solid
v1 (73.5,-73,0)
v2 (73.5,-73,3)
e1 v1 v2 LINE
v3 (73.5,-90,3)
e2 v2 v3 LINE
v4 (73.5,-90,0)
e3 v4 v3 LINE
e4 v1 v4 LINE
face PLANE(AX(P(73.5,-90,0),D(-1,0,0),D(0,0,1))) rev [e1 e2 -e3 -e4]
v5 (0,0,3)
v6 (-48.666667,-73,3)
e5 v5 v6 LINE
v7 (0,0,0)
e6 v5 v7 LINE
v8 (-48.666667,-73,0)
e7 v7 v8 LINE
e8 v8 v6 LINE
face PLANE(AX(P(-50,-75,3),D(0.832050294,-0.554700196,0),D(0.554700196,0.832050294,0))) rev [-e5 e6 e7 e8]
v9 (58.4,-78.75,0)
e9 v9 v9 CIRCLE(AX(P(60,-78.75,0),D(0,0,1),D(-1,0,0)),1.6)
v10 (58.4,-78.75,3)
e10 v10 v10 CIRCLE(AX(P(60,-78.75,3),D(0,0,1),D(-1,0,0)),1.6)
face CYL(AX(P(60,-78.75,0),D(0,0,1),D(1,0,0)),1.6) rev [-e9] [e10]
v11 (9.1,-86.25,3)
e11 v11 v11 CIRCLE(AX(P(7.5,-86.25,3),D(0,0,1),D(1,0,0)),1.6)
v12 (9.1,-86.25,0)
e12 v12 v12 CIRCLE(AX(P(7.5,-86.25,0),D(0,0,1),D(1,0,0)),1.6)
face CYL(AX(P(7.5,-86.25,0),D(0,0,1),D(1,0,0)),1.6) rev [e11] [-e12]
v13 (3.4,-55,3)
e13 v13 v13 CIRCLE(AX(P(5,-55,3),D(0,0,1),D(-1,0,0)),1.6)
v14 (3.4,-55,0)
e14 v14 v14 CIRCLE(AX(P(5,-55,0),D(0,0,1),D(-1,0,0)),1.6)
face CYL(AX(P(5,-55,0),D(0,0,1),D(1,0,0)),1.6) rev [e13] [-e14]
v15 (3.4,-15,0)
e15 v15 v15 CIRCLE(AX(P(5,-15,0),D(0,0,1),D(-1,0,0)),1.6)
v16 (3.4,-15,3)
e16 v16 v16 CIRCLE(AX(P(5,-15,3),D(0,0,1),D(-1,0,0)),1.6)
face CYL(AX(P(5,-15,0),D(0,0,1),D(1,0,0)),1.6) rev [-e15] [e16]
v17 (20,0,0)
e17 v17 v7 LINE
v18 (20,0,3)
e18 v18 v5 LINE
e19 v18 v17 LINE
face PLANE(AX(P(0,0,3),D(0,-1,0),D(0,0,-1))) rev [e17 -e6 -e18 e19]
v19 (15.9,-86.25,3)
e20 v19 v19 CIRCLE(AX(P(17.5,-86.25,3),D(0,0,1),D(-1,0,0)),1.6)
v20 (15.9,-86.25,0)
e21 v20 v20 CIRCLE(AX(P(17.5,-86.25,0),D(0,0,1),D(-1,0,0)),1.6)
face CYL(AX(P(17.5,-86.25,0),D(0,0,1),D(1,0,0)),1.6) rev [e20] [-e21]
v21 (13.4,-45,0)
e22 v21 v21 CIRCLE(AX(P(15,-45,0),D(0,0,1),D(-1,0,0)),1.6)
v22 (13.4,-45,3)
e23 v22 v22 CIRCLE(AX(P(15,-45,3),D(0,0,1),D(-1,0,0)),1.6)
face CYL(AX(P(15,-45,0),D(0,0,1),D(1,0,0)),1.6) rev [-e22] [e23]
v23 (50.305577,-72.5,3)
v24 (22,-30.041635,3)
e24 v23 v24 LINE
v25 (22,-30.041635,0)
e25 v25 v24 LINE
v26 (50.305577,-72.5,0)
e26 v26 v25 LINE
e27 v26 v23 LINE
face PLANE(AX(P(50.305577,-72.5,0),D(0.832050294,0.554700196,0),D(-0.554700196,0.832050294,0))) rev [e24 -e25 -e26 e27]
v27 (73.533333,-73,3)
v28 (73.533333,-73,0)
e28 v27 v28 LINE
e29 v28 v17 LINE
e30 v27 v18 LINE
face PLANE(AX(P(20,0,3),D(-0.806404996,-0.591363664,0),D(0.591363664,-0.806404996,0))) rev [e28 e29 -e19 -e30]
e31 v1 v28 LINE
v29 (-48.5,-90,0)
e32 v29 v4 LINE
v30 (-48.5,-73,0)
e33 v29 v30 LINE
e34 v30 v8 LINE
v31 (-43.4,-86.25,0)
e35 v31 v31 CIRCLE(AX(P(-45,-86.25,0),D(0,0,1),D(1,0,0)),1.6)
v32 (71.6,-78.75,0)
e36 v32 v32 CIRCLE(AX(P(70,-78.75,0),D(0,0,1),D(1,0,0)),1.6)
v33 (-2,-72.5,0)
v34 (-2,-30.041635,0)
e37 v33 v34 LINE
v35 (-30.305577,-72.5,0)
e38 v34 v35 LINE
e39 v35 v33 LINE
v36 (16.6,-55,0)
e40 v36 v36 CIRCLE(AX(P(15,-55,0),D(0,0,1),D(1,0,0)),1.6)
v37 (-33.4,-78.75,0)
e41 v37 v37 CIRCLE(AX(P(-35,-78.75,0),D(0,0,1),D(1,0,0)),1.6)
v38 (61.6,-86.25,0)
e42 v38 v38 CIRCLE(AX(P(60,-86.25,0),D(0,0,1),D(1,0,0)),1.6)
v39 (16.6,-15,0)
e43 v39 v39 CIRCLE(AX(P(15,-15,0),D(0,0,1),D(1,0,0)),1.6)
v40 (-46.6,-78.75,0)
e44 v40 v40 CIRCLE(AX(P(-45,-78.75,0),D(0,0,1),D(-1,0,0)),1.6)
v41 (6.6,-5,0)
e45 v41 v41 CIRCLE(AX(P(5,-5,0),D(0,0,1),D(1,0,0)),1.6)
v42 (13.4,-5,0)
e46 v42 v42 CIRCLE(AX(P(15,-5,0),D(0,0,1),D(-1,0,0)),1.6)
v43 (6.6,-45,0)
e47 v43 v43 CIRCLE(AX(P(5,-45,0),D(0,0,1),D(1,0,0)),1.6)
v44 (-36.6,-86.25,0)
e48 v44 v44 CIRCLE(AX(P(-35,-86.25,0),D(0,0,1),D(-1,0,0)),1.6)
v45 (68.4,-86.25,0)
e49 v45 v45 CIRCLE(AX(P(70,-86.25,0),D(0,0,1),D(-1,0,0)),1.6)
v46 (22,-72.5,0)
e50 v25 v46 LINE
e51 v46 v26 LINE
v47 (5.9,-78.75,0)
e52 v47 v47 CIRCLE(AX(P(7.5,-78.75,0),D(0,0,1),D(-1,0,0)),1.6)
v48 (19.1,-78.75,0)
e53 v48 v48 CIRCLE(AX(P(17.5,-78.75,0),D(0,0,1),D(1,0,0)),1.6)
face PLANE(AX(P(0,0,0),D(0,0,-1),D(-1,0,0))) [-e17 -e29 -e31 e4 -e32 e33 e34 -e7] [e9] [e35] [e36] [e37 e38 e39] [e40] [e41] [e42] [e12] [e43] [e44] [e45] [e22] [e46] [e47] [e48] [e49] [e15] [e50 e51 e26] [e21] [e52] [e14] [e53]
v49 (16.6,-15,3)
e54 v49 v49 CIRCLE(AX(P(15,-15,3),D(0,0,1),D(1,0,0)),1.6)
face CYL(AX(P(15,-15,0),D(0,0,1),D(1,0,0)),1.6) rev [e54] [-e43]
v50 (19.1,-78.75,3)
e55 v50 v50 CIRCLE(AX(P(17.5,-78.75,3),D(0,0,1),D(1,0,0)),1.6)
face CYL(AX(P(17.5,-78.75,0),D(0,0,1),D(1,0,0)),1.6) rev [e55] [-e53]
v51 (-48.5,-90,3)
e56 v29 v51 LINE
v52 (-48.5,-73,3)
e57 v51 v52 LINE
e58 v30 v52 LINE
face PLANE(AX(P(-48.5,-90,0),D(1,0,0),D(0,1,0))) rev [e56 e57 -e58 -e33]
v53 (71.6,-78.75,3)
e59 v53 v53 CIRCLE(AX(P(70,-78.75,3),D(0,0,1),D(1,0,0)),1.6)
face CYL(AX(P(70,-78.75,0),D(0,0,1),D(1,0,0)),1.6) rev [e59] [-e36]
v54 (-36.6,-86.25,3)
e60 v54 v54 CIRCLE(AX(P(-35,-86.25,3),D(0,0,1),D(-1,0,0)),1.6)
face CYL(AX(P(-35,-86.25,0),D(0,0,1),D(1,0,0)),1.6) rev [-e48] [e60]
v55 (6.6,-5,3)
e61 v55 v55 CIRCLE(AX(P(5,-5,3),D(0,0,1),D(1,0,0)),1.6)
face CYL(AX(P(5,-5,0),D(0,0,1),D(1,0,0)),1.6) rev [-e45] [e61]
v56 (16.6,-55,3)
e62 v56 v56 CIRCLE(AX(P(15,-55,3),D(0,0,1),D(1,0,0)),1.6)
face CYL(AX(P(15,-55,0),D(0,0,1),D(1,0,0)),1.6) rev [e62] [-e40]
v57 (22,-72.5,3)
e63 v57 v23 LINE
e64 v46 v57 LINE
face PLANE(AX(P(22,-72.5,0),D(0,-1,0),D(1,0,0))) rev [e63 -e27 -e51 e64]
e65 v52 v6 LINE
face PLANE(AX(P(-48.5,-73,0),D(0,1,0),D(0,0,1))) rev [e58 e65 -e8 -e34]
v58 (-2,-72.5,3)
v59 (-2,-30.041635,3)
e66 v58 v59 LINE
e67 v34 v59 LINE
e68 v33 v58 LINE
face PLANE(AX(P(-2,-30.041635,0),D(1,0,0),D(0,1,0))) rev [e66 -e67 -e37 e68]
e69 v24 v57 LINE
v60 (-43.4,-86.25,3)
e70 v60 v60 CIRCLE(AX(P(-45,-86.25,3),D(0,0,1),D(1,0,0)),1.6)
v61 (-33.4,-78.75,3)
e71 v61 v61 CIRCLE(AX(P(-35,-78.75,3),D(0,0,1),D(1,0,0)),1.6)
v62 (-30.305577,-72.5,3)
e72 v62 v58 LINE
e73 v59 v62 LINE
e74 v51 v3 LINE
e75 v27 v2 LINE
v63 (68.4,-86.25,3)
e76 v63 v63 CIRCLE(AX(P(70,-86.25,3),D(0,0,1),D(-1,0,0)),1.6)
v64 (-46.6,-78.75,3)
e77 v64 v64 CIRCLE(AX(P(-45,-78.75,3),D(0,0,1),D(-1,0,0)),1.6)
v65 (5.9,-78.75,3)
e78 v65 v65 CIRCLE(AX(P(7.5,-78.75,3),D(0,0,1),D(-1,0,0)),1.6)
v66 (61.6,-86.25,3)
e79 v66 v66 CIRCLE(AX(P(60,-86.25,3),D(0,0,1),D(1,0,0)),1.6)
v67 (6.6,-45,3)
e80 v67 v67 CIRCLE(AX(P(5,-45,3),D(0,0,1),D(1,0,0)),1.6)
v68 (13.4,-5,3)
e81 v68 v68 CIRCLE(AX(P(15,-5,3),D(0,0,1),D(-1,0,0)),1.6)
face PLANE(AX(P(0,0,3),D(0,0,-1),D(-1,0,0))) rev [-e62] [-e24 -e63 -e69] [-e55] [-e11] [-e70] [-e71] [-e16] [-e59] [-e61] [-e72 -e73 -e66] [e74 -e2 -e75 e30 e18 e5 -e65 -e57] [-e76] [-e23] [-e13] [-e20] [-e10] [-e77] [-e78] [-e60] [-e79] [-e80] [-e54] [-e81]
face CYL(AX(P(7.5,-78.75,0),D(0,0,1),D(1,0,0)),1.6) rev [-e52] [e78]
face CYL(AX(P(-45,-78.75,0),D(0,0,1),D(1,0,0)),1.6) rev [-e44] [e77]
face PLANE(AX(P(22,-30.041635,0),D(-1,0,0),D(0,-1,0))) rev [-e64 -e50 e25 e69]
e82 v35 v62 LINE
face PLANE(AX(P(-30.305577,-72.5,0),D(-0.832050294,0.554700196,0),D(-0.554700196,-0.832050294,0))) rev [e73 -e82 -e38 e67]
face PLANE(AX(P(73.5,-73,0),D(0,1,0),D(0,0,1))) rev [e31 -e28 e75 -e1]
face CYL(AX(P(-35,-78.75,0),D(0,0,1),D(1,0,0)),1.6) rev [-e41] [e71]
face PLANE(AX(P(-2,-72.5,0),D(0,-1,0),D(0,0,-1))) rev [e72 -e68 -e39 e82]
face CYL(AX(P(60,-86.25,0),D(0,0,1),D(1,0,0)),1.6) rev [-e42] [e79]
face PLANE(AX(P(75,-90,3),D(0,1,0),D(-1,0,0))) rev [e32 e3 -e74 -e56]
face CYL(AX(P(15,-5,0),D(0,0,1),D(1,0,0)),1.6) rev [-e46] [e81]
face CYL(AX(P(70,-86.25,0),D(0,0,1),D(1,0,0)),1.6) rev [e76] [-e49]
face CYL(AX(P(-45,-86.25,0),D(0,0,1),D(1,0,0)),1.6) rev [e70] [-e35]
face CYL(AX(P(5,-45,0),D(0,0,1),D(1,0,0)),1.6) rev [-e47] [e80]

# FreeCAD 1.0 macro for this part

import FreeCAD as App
import Part
import Sketcher
Q = App.Units.Quantity

doc = App.newDocument("Part")
body = doc.addObject("PartDesign::Body", "Body")

# Sketch on XY plane
sketch1 = doc.addObject("Sketcher::SketchObject", "Sketch")
body.addObject(sketch1)
sketch1.AttachmentSupport = (doc.XY_Plane, [""])
sketch1.MapMode = "FlatFace"
sketch1.addGeometry([
    Part.LineSegment(App.Vector(20, 0, 0), App.Vector(0, 0, 0)),  # 0
    Part.LineSegment(App.Vector(0, 0, 0), App.Vector(-50, -75, 0)),  # 1
    Part.LineSegment(App.Vector(-50, -75, 0), App.Vector(-50, -90, 0)),  # 2
    Part.LineSegment(App.Vector(-50, -90, 0), App.Vector(75, -90, 0)),  # 3
    Part.LineSegment(App.Vector(75, -90, 0), App.Vector(75, -75, 0)),  # 4
    Part.LineSegment(App.Vector(75, -75, 0), App.Vector(20, 0, 0)),  # 5
], False)
sketch1.addConstraint([
    Sketcher.Constraint("Coincident", 0, 2, 1, 1),
    Sketcher.Constraint("Coincident", 1, 2, 2, 1),
    Sketcher.Constraint("Coincident", 2, 2, 3, 1),
    Sketcher.Constraint("Coincident", 3, 2, 4, 1),
    Sketcher.Constraint("Coincident", 4, 2, 5, 1),
    Sketcher.Constraint("Coincident", 5, 2, 0, 1),
    Sketcher.Constraint("Horizontal", 0),
    Sketcher.Constraint("Vertical", 2),
    Sketcher.Constraint("Horizontal", 3),
    Sketcher.Constraint("Vertical", 4),
    Sketcher.Constraint("Coincident", 0, 2, -1, 1),
    Sketcher.Constraint("Horizontal", 1, 2, 4, 2),
    Sketcher.Constraint("DistanceX", 0, 2, 0, 1, Q("20 mm")),
    Sketcher.Constraint("DistanceX", 3, 1, 3, 2, Q("125 mm")),
    Sketcher.Constraint("DistanceY", 2, 2, 2, 1, Q("15 mm")),
    Sketcher.Constraint("DistanceX", 1, 2, -1, 1, Q("50 mm")),
    Sketcher.Constraint("DistanceY", 1, 2, -1, 1, Q("75 mm")),
])
pad1 = doc.addObject("PartDesign::Pad", "Pad")
body.addObject(pad1)
pad1.Profile = sketch1
pad1.Length = 3

# Sketch on XY plane
sketch2 = doc.addObject("Sketcher::SketchObject", "Sketch001")
body.addObject(sketch2)
sketch2.AttachmentSupport = (doc.XY_Plane, [""])
sketch2.MapMode = "FlatFace"
sketch2.AttachmentOffset = App.Placement(App.Vector(0, 0, 3), App.Rotation())
sketch2.addGeometry([
    Part.Circle(App.Vector(5, -5, 0), App.Vector(0, 0, 1), 1.6),  # 0
    Part.Circle(App.Vector(15, -5, 0), App.Vector(0, 0, 1), 1.6),  # 1
    Part.Circle(App.Vector(15, -15, 0), App.Vector(0, 0, 1), 1.6),  # 2
    Part.Circle(App.Vector(5, -15, 0), App.Vector(0, 0, 1), 1.6),  # 3
    Part.Circle(App.Vector(-45, -86.2, 0), App.Vector(0, 0, 1), 1.6),  # 4
    Part.Circle(App.Vector(-45, -78.8, 0), App.Vector(0, 0, 1), 1.6),  # 5
    Part.Circle(App.Vector(-35, -86.2, 0), App.Vector(0, 0, 1), 1.6),  # 6
    Part.Circle(App.Vector(-35, -78.8, 0), App.Vector(0, 0, 1), 1.6),  # 7
    Part.Circle(App.Vector(60, -78.8, 0), App.Vector(0, 0, 1), 1.6),  # 8
    Part.Circle(App.Vector(60, -86.2, 0), App.Vector(0, 0, 1), 1.6),  # 9
    Part.Circle(App.Vector(70, -78.8, 0), App.Vector(0, 0, 1), 1.6),  # 10
    Part.Circle(App.Vector(70, -86.2, 0), App.Vector(0, 0, 1), 1.6),  # 11
    Part.Circle(App.Vector(7.5, -86.2, 0), App.Vector(0, 0, 1), 1.6),  # 12
    Part.Circle(App.Vector(17.5, -86.2, 0), App.Vector(0, 0, 1), 1.6),  # 13
    Part.Circle(App.Vector(17.5, -78.8, 0), App.Vector(0, 0, 1), 1.6),  # 14
    Part.Circle(App.Vector(7.5, -78.8, 0), App.Vector(0, 0, 1), 1.6),  # 15
    Part.Circle(App.Vector(5, -45, 0), App.Vector(0, 0, 1), 1.6),  # 16
    Part.Circle(App.Vector(15, -45, 0), App.Vector(0, 0, 1), 1.6),  # 17
    Part.Circle(App.Vector(15, -55, 0), App.Vector(0, 0, 1), 1.6),  # 18
    Part.Circle(App.Vector(5, -55, 0), App.Vector(0, 0, 1), 1.6),  # 19
    Part.LineSegment(App.Vector(-2, -72.5, 0), App.Vector(-2, -30, 0)),  # 20
    Part.LineSegment(App.Vector(-2, -30, 0), App.Vector(-30.3, -72.5, 0)),  # 21
    Part.LineSegment(App.Vector(-30.3, -72.5, 0), App.Vector(-2, -72.5, 0)),  # 22
    Part.LineSegment(App.Vector(22, -72.5, 0), App.Vector(50.3, -72.5, 0)),  # 23
    Part.LineSegment(App.Vector(50.3, -72.5, 0), App.Vector(22, -30, 0)),  # 24
    Part.LineSegment(App.Vector(22, -30, 0), App.Vector(22, -72.5, 0)),  # 25
    Part.LineSegment(App.Vector(73.5, -73, 0), App.Vector(73.5, -90, 0)),  # 26
    Part.LineSegment(App.Vector(73.5, -90, 0), App.Vector(75, -90, 0)),  # 27
    Part.LineSegment(App.Vector(75, -90, 0), App.Vector(75, -73, 0)),  # 28
    Part.LineSegment(App.Vector(75, -73, 0), App.Vector(73.5, -73, 0)),  # 29
    Part.LineSegment(App.Vector(-50, -73, 0), App.Vector(-50, -90, 0)),  # 30
    Part.LineSegment(App.Vector(-50, -90, 0), App.Vector(-48.5, -90, 0)),  # 31
    Part.LineSegment(App.Vector(-48.5, -90, 0), App.Vector(-48.5, -73, 0)),  # 32
    Part.LineSegment(App.Vector(-48.5, -73, 0), App.Vector(-50, -73, 0)),  # 33
], False)
sketch2.addConstraint([
    Sketcher.Constraint("Coincident", 20, 2, 21, 1),
    Sketcher.Constraint("Coincident", 21, 2, 22, 1),
    Sketcher.Constraint("Coincident", 22, 2, 20, 1),
    Sketcher.Constraint("Coincident", 23, 2, 24, 1),
    Sketcher.Constraint("Coincident", 24, 2, 25, 1),
    Sketcher.Constraint("Coincident", 25, 2, 23, 1),
    Sketcher.Constraint("Coincident", 26, 2, 27, 1),
    Sketcher.Constraint("Coincident", 27, 2, 28, 1),
    Sketcher.Constraint("Coincident", 28, 2, 29, 1),
    Sketcher.Constraint("Coincident", 29, 2, 26, 1),
    Sketcher.Constraint("Coincident", 30, 2, 31, 1),
    Sketcher.Constraint("Coincident", 31, 2, 32, 1),
    Sketcher.Constraint("Coincident", 32, 2, 33, 1),
    Sketcher.Constraint("Coincident", 33, 2, 30, 1),
    Sketcher.Constraint("Vertical", 20),
    Sketcher.Constraint("Horizontal", 22),
    Sketcher.Constraint("Horizontal", 23),
    Sketcher.Constraint("Vertical", 25),
    Sketcher.Constraint("Vertical", 26),
    Sketcher.Constraint("Horizontal", 27),
    Sketcher.Constraint("Vertical", 28),
    Sketcher.Constraint("Horizontal", 29),
    Sketcher.Constraint("Vertical", 30),
    Sketcher.Constraint("Horizontal", 31),
    Sketcher.Constraint("Vertical", 32),
    Sketcher.Constraint("Horizontal", 33),
    Sketcher.Constraint("Equal", 0, 1),
    Sketcher.Constraint("Equal", 1, 2),
    Sketcher.Constraint("Equal", 2, 3),
    Sketcher.Constraint("Equal", 3, 4),
    Sketcher.Constraint("Equal", 4, 5),
    Sketcher.Constraint("Equal", 5, 6),
    Sketcher.Constraint("Equal", 6, 7),
    Sketcher.Constraint("Equal", 7, 8),
    Sketcher.Constraint("Equal", 8, 9),
    Sketcher.Constraint("Equal", 9, 10),
    Sketcher.Constraint("Equal", 10, 11),
    Sketcher.Constraint("Equal", 11, 12),
    Sketcher.Constraint("Equal", 12, 13),
    Sketcher.Constraint("Equal", 13, 14),
    Sketcher.Constraint("Equal", 14, 15),
    Sketcher.Constraint("Equal", 15, 16),
    Sketcher.Constraint("Equal", 16, 17),
    Sketcher.Constraint("Equal", 17, 18),
    Sketcher.Constraint("Equal", 18, 19),
    Sketcher.Constraint("Horizontal", 0, 3, 1, 3),
    Sketcher.Constraint("Horizontal", 2, 3, 3, 3),
    Sketcher.Constraint("Horizontal", 4, 3, 6, 3),
    Sketcher.Constraint("Horizontal", 5, 3, 7, 3),
    Sketcher.Constraint("Horizontal", 7, 3, 8, 3),
    Sketcher.Constraint("Horizontal", 6, 3, 9, 3),
    Sketcher.Constraint("Horizontal", 8, 3, 10, 3),
    Sketcher.Constraint("Horizontal", 9, 3, 11, 3),
    Sketcher.Constraint("Horizontal", 11, 3, 12, 3),
    Sketcher.Constraint("Horizontal", 12, 3, 13, 3),
    Sketcher.Constraint("Horizontal", 10, 3, 14, 3),
    Sketcher.Constraint("Horizontal", 14, 3, 15, 3),
    Sketcher.Constraint("Horizontal", 16, 3, 17, 3),
    Sketcher.Constraint("Horizontal", 18, 3, 19, 3),
    Sketcher.Constraint("Horizontal", 22, 2, 23, 2),
    Sketcher.Constraint("Horizontal", 20, 2, 24, 2),
    Sketcher.Constraint("Horizontal", 27, 2, 30, 2),
    Sketcher.Constraint("Horizontal", 29, 2, 32, 2),
    Sketcher.Constraint("Vertical", 1, 3, 2, 3),
    Sketcher.Constraint("Vertical", 0, 3, 3, 3),
    Sketcher.Constraint("Vertical", 4, 3, 5, 3),
    Sketcher.Constraint("Vertical", 6, 3, 7, 3),
    Sketcher.Constraint("Vertical", 8, 3, 9, 3),
    Sketcher.Constraint("Vertical", 10, 3, 11, 3),
    Sketcher.Constraint("Vertical", 13, 3, 14, 3),
    Sketcher.Constraint("Vertical", 12, 3, 15, 3),
    Sketcher.Constraint("Vertical", 3, 3, 16, 3),
    Sketcher.Constraint("Vertical", 2, 3, 17, 3),
    Sketcher.Constraint("Vertical", 17, 3, 18, 3),
    Sketcher.Constraint("Vertical", 16, 3, 19, 3),
    Sketcher.Constraint("Equal", 22, 23),
    Sketcher.Constraint("Equal", 29, 31),
    Sketcher.Constraint("Diameter", 0, Q("3.2 mm")),
    Sketcher.Constraint("DistanceY", 26, 2, 26, 1, Q("17 mm")),
    Sketcher.Constraint("DistanceX", 27, 1, 27, 2, Q("1.5 mm")),
    Sketcher.Constraint("DistanceX", -1, 1, 0, 3, Q("5 mm")),
    Sketcher.Constraint("DistanceY", 0, 3, -1, 1, Q("5 mm")),
    Sketcher.Constraint("DistanceX", -1, 1, 1, 3, Q("15 mm")),
    Sketcher.Constraint("DistanceY", 2, 3, -1, 1, Q("15 mm")),
    Sketcher.Constraint("DistanceX", 4, 3, -1, 1, Q("45 mm")),
    Sketcher.Constraint("DistanceX", 6, 3, -1, 1, Q("35 mm")),
    Sketcher.Constraint("DistanceX", -1, 1, 8, 3, Q("60 mm")),
    Sketcher.Constraint("DistanceX", -1, 1, 10, 3, Q("70 mm")),
    Sketcher.Constraint("DistanceY", 16, 3, -1, 1, Q("45 mm")),
    Sketcher.Constraint("DistanceY", 18, 3, -1, 1, Q("55 mm")),
    Sketcher.Constraint("DistanceX", 20, 2, -1, 1, Q("2 mm")),
    Sketcher.Constraint("DistanceX", -1, 1, 24, 2, Q("22 mm")),
    Sketcher.Constraint("DistanceY", 26, 2, -1, 1, Q("90 mm")),
    Sketcher.Constraint("DistanceX", -1, 1, 27, 2, Q("75 mm")),
    Sketcher.Constraint("DistanceX", 30, 2, -1, 1, Q("50 mm")),
    Sketcher.Constraint("DistanceX", 12, 3, 13, 3, Q("10 mm")),
    Sketcher.Constraint("DistanceX", -1, 1, 12, 3, Q("7.5 mm")),
    Sketcher.Constraint("DistanceY", 21, 2, -1, 1, Q("72.5 mm")),
    Sketcher.Constraint("DistanceY", 4, 3, 5, 3, Q("7.5 mm")),
    Sketcher.Constraint("DistanceY", 4, 3, -1, 1, Q("86.25 mm")),
    Sketcher.Constraint("DistanceX", 22, 1, 22, 2, Q("28.305577 mm")),
    Sketcher.Constraint("DistanceY", 20, 1, 20, 2, Q("42.458365 mm")),
])
pocket1 = doc.addObject("PartDesign::Pocket", "Pocket")
body.addObject(pocket1)
pocket1.Profile = sketch2
pocket1.Type = "ThroughAll"

doc.recompute()
